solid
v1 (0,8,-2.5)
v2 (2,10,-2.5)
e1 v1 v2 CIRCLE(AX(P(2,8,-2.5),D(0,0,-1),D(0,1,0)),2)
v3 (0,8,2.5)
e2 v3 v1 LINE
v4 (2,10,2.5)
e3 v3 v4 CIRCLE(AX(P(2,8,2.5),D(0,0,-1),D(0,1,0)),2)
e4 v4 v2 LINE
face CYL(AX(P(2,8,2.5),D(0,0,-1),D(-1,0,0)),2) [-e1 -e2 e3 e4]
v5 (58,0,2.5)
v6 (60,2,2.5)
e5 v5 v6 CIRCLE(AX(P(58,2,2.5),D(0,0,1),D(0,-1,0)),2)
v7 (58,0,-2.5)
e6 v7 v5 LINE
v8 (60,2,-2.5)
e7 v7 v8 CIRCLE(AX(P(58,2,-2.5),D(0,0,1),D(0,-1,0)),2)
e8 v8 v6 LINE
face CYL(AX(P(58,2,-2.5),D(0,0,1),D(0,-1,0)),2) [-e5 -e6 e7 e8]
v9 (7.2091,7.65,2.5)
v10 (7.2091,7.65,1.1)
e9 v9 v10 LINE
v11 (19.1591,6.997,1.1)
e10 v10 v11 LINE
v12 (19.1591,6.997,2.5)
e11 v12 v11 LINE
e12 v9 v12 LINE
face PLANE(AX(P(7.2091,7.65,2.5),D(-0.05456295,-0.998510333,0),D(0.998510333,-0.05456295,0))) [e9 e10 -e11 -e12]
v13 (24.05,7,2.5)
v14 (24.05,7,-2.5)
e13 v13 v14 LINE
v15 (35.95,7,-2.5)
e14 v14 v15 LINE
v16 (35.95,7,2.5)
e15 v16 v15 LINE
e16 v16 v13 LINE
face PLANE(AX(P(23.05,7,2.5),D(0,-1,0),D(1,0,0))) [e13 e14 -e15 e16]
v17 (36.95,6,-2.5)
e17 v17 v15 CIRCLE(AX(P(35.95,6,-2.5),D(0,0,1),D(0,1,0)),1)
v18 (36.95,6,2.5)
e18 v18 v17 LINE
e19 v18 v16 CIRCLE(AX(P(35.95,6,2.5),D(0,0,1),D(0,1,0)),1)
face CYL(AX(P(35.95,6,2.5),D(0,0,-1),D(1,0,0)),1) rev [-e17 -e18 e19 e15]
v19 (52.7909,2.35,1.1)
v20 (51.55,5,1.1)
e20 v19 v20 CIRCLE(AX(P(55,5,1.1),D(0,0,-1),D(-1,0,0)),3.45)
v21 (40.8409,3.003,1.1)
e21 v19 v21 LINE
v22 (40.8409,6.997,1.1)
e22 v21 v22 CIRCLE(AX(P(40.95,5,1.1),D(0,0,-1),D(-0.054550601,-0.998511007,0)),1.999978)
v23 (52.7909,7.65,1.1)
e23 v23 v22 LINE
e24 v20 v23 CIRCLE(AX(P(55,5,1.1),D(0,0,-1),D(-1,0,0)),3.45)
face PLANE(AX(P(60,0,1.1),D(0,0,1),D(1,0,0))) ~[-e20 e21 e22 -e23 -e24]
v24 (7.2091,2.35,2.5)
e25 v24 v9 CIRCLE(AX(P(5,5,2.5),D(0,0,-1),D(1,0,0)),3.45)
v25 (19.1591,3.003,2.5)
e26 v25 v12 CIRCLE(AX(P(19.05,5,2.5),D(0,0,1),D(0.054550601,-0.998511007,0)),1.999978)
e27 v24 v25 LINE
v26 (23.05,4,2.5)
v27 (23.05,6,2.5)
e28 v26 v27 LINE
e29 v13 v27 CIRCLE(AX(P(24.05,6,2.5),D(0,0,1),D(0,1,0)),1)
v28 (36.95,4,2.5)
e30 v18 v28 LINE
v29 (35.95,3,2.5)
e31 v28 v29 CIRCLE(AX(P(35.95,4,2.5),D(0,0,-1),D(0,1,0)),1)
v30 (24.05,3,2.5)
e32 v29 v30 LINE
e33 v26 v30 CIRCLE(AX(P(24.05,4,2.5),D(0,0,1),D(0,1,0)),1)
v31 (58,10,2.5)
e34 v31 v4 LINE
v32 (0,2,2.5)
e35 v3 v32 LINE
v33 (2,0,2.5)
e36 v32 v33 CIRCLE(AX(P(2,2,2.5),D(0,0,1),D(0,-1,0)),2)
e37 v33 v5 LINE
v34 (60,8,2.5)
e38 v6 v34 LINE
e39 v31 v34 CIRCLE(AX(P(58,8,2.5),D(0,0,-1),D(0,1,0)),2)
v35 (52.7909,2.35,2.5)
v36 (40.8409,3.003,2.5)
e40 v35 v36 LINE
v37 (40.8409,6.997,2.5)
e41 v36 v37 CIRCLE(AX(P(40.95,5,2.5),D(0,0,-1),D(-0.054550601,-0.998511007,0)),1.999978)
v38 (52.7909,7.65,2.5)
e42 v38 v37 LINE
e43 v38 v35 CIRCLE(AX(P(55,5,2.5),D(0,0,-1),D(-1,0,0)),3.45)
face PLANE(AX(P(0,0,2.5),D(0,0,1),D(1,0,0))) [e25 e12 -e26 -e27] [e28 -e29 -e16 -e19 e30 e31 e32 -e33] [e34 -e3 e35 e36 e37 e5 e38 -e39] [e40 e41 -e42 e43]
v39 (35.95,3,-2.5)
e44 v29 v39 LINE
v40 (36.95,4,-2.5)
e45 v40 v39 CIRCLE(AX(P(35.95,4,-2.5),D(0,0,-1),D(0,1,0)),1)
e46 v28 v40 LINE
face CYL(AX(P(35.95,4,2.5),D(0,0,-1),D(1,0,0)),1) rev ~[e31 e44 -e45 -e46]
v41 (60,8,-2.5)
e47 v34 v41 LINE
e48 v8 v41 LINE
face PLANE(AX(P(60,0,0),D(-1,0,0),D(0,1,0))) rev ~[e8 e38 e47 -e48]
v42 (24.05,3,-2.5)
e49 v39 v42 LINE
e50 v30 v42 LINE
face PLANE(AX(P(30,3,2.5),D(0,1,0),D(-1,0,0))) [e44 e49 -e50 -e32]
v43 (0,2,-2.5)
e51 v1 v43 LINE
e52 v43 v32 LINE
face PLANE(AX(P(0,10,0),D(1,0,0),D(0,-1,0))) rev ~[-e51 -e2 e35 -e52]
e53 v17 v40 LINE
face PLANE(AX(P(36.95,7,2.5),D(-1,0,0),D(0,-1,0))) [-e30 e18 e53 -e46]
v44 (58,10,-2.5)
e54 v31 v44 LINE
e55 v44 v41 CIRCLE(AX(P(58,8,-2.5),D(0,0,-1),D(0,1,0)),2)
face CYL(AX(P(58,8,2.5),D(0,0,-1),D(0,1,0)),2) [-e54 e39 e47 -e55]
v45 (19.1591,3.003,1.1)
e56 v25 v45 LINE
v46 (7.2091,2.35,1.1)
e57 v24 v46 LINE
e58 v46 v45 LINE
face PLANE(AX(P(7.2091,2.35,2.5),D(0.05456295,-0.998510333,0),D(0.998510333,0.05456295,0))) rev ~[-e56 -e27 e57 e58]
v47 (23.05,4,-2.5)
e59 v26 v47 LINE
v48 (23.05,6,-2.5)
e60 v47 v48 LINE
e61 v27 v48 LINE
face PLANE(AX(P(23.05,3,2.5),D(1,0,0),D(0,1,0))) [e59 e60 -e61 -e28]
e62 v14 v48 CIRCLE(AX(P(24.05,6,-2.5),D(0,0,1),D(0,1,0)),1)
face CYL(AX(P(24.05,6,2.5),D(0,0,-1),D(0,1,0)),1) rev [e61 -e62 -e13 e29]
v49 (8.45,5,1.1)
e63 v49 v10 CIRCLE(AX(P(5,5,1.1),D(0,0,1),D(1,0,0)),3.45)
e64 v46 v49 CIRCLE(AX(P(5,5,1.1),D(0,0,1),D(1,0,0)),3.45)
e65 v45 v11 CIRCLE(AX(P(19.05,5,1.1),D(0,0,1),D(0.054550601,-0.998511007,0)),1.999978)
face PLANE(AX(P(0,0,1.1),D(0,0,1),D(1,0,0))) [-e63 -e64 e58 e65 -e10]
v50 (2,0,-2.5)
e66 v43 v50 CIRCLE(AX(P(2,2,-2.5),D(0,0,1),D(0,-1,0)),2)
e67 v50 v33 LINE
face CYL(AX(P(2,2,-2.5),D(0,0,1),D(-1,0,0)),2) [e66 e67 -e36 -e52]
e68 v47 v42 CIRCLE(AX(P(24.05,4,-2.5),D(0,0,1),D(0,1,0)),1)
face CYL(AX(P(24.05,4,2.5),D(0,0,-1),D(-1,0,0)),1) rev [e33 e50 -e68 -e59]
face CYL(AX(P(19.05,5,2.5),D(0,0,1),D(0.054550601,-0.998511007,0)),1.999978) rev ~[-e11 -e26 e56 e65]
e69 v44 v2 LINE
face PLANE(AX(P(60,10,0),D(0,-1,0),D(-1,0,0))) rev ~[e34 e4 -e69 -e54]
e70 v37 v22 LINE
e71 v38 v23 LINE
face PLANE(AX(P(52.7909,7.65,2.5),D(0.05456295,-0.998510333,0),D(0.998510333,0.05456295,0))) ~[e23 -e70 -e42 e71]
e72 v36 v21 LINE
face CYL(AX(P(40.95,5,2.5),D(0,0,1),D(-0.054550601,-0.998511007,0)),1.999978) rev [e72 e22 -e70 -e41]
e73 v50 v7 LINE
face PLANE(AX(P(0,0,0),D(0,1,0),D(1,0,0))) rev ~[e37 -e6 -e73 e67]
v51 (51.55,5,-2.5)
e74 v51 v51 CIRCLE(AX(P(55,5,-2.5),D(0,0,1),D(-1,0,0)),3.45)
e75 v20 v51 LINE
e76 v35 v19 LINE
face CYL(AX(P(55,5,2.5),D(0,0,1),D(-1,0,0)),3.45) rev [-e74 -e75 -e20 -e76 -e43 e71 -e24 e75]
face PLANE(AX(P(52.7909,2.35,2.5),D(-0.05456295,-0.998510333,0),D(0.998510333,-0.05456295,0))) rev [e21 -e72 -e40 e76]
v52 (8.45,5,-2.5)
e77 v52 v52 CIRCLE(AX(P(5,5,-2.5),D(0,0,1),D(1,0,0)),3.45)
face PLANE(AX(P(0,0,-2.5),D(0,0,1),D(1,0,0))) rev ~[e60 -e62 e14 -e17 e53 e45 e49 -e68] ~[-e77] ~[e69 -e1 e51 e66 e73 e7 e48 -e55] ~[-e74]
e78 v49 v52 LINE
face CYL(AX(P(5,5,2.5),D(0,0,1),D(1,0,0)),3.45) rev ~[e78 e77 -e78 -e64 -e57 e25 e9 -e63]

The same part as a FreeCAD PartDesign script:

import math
import FreeCAD as App
import Part
import Sketcher
from FreeCAD import Vector
Q = App.Units.Quantity


def edges_at(feature, points):
    """Names of the edges that pass closest to the given points."""
    edges = feature.Shape.Edges
    near = lambda p: min(range(len(edges)), key=lambda i: edges[i].distToShape(Part.Vertex(*p))[0])
    return sorted({f"Edge{near(p) + 1}" for p in points})


def add_polygon(sketch, points):
    """Adds a closed chain of lines whose ends are joined by coincident constraints."""
    first, n = sketch.GeometryCount, len(points)
    for a, b in zip(points, points[1:] + points[:1]):
        sketch.addGeometry(Part.LineSegment(App.Vector(*a, 0), App.Vector(*b, 0)), False)
    for i in range(n):
        sketch.addConstraint(Sketcher.Constraint("Coincident", first + i, 2, first + (i + 1) % n, 1))

doc = App.newDocument("Part")
body = doc.addObject("PartDesign::Body", "Body")

sketch1 = body.newObject("Sketcher::SketchObject", "Sketch")
sketch1.AttachmentSupport = (doc.getObject("XY_Plane"), [""])
sketch1.MapMode = "FlatFace"
add_polygon(sketch1, [(0, 10), (0, 0), (60, 0), (60, 10)])
sketch1.addConstraint([
    Sketcher.Constraint("Vertical", 0),
    Sketcher.Constraint("Horizontal", 1),
    Sketcher.Constraint("Vertical", 2),
    Sketcher.Constraint("Horizontal", 3),
    Sketcher.Constraint("Coincident", 0, 2, -1, 1),
    Sketcher.Constraint("DistanceX", 1, 1, 1, 2, Q("60 mm")),
    Sketcher.Constraint("DistanceY", 0, 2, 0, 1, Q("10 mm")),
])
pad1 = body.newObject("PartDesign::Pad", "Pad")
pad1.Profile = sketch1
pad1.Length = 5
pad1.Midplane = True

sketch2 = body.newObject("Sketcher::SketchObject", "Sketch001")
sketch2.AttachmentSupport = (doc.getObject("XY_Plane"), [""])
sketch2.MapMode = "FlatFace"
sketch2.AttachmentOffset = App.Placement(Vector(0, 0, 2.5), App.Rotation())
sketch2.addGeometry(Part.Circle(Vector(5, 5, 0), Vector(0, 0, 1), 3.45), False)
sketch2.addConstraint([
    Sketcher.Constraint("Diameter", 0, Q("6.9 mm")),
    Sketcher.Constraint("DistanceX", -1, 1, 0, 3, Q("5 mm")),
    Sketcher.Constraint("DistanceY", -1, 1, 0, 3, Q("5 mm")),
])
pocket1 = body.newObject("PartDesign::Pocket", "Pocket")
pocket1.Profile = sketch2
pocket1.Type = "ThroughAll"
pocket1.Midplane = True

sketch3 = body.newObject("Sketcher::SketchObject", "Sketch002")
sketch3.AttachmentSupport = (doc.getObject("XY_Plane"), [""])
sketch3.MapMode = "FlatFace"
sketch3.AttachmentOffset = App.Placement(Vector(0, 0, 2.5), App.Rotation())
sketch3.addGeometry([
    Part.ArcOfCircle(Part.Circle(Vector(5, 5, 0), Vector(0, 0, 1), 3.45), math.radians(-50.184648), math.radians(50.184648)),
    Part.LineSegment(Vector(7.2091, 2.35, 0), Vector(19.1591, 3.003, 0)),
    Part.ArcOfCircle(Part.Circle(Vector(19.05, 5, 0), Vector(0, 0, 1), 1.999978), math.radians(-86.872929), math.radians(86.872929)),
    Part.LineSegment(Vector(19.1591, 6.997, 0), Vector(7.2091, 7.65, 0)),
], False)
sketch3.addConstraint([
    Sketcher.Constraint("Coincident", 0, 1, 1, 1),
    Sketcher.Constraint("Tangent", 1, 2, 2, 1),
    Sketcher.Constraint("Tangent", 2, 2, 3, 1),
    Sketcher.Constraint("Coincident", 3, 2, 0, 2),
    Sketcher.Constraint("Horizontal", 0, 3, 2, 3),
    Sketcher.Constraint("Vertical", 1, 2, 2, 2),
    Sketcher.Constraint("Radius", 2, Q("2 mm")),
    Sketcher.Constraint("Radius", 0, Q("3.45 mm")),
    Sketcher.Constraint("DistanceY", 0, 1, 3, 2, Q("5.3 mm")),
    Sketcher.Constraint("DistanceX", 0, 3, 2, 3, Q("14.05 mm")),
    Sketcher.Constraint("DistanceX", -1, 1, 0, 3, Q("5 mm")),
    Sketcher.Constraint("DistanceY", -1, 1, 0, 3, Q("5 mm")),
])
pocket2 = body.newObject("PartDesign::Pocket", "Pocket001")
pocket2.Profile = sketch3
pocket2.Length = 1.4
doc.recompute()

datumplane = body.newObject("PartDesign::Plane", "DatumPlane")
datumplane.AttachmentSupport = (doc.getObject("YZ_Plane"), [""])
datumplane.MapMode = "FlatFace"
datumplane.AttachmentOffset = App.Placement(Vector(0, 0, 30), App.Rotation())
mirrored = body.newObject("PartDesign::Mirrored", "Mirrored")
mirrored.Originals = [pocket1, pocket2]
mirrored.MirrorPlane = (datumplane, [""])
body.Tip = mirrored
doc.recompute()

fillet = body.newObject("PartDesign::Fillet", "Fillet")
fillet.Base = (mirrored, edges_at(mirrored, [
    (60, 10, 0),
    (60, 0, 0),
    (0, 0, 0),
    (0, 10, 0),
]))
fillet.Radius = 2

sketch4 = body.newObject("Sketcher::SketchObject", "Sketch003")
sketch4.AttachmentSupport = (doc.getObject("XY_Plane"), [""])
sketch4.MapMode = "FlatFace"
sketch4.AttachmentOffset = App.Placement(Vector(0, 0, 2.5), App.Rotation())
add_polygon(sketch4, [(23.05, 3), (36.95, 3), (36.95, 7), (23.05, 7)])
sketch4.addConstraint([
    Sketcher.Constraint("Horizontal", 0),
    Sketcher.Constraint("Vertical", 1),
    Sketcher.Constraint("Horizontal", 2),
    Sketcher.Constraint("Vertical", 3),
    Sketcher.Constraint("DistanceY", -1, 1, 0, 2, Q("3 mm")),
    Sketcher.Constraint("DistanceY", 1, 1, 1, 2, Q("4 mm")),
    Sketcher.Constraint("DistanceX", 0, 1, 0, 2, Q("13.9 mm")),
    Sketcher.Constraint("DistanceX", -1, 1, 0, 2, Q("36.95 mm")),
])
pocket3 = body.newObject("PartDesign::Pocket", "Pocket002")
pocket3.Profile = sketch4
pocket3.Type = "ThroughAll"
doc.recompute()

fillet2 = body.newObject("PartDesign::Fillet", "Fillet001")
fillet2.Base = (pocket3, edges_at(pocket3, [
    (23.05, 7, 0),
    (23.05, 3, 0),
    (36.95, 3, 0),
    (36.95, 7, 0),
]))
fillet2.Radius = 1

doc.recompute()
